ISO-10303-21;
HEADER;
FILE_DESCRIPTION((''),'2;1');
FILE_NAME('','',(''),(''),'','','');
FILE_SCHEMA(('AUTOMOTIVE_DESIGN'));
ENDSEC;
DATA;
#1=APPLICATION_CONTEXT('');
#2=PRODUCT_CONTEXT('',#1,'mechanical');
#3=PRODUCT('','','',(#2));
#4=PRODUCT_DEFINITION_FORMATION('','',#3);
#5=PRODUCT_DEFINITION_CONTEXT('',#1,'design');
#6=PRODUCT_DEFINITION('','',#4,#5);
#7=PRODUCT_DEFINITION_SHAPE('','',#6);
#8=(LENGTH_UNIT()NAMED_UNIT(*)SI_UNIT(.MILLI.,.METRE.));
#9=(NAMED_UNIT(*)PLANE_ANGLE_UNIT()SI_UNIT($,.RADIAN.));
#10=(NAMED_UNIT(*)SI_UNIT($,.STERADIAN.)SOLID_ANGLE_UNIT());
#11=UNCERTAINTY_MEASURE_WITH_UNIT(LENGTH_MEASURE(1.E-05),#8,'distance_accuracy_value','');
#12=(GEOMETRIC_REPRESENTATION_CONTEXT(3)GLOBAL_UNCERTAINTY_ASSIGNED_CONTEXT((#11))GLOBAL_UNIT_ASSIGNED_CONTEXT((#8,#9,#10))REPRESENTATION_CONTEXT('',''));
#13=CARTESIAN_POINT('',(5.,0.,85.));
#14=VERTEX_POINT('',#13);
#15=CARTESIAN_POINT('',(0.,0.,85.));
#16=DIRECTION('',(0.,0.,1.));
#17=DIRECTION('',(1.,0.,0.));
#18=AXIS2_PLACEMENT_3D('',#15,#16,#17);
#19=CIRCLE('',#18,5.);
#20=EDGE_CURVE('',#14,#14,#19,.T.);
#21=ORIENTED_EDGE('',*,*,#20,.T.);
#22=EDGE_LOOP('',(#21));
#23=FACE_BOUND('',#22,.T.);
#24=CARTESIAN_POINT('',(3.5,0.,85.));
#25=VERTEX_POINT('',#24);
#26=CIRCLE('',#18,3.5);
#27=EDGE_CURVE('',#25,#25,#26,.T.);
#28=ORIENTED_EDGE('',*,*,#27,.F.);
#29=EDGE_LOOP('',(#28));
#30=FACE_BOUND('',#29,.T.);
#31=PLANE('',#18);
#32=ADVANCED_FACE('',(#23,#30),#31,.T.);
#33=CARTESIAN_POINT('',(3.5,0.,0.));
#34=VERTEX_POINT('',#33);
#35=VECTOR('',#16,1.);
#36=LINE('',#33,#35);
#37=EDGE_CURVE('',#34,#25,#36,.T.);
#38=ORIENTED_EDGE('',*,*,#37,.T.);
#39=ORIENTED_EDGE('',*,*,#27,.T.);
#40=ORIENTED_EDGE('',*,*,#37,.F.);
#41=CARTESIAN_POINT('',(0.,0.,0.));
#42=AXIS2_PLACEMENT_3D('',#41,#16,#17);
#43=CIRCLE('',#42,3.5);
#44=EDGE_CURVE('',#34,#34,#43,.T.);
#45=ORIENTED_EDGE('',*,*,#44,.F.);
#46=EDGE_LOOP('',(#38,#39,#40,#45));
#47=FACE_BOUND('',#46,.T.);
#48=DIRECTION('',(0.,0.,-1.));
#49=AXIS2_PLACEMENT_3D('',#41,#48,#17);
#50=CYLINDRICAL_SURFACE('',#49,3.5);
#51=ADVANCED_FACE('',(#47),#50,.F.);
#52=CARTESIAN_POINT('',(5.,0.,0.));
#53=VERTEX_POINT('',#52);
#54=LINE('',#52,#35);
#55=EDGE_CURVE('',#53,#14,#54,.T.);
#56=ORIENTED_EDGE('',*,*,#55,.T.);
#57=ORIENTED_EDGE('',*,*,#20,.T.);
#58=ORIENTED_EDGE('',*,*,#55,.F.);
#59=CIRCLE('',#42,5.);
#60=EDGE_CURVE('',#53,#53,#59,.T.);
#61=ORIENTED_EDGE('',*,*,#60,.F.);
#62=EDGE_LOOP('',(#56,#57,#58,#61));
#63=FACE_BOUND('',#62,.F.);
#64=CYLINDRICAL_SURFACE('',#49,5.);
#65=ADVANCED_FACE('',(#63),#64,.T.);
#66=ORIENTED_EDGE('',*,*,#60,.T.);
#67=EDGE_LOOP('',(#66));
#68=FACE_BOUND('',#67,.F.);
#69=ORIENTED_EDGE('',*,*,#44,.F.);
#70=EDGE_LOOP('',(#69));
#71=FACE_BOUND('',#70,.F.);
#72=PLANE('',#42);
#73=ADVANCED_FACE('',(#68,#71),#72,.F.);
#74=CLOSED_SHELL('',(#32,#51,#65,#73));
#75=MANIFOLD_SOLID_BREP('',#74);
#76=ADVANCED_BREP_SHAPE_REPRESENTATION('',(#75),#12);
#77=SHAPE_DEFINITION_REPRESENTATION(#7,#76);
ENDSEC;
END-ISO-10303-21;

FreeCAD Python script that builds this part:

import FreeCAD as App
import Part
import Sketcher
Q = App.Units.Quantity

doc = App.newDocument("Part")
body = doc.addObject("PartDesign::Body", "Body")

# Sketch on XY plane
sketch1 = doc.addObject("Sketcher::SketchObject", "Sketch")
body.addObject(sketch1)
sketch1.AttachmentSupport = (doc.XY_Plane, [""])
sketch1.MapMode = "FlatFace"
sketch1.addGeometry(Part.Circle(App.Vector(0, 0, 0), App.Vector(0, 0, 1), 5), False)
sketch1.addGeometry(Part.Circle(App.Vector(0, 0, 0), App.Vector(0, 0, 1), 3.5), False)
sketch1.addConstraint(Sketcher.Constraint("Coincident", 0, 3, -1, 1))
sketch1.addConstraint(Sketcher.Constraint("Coincident", 1, 3, -1, 1))
sketch1.addConstraint(Sketcher.Constraint("Diameter", 0, Q("10 mm")))
sketch1.addConstraint(Sketcher.Constraint("Diameter", 1, Q("7 mm")))
pad1 = doc.addObject("PartDesign::Pad", "Pad")
body.addObject(pad1)
pad1.Profile = sketch1
pad1.Length = 85

doc.recompute()
